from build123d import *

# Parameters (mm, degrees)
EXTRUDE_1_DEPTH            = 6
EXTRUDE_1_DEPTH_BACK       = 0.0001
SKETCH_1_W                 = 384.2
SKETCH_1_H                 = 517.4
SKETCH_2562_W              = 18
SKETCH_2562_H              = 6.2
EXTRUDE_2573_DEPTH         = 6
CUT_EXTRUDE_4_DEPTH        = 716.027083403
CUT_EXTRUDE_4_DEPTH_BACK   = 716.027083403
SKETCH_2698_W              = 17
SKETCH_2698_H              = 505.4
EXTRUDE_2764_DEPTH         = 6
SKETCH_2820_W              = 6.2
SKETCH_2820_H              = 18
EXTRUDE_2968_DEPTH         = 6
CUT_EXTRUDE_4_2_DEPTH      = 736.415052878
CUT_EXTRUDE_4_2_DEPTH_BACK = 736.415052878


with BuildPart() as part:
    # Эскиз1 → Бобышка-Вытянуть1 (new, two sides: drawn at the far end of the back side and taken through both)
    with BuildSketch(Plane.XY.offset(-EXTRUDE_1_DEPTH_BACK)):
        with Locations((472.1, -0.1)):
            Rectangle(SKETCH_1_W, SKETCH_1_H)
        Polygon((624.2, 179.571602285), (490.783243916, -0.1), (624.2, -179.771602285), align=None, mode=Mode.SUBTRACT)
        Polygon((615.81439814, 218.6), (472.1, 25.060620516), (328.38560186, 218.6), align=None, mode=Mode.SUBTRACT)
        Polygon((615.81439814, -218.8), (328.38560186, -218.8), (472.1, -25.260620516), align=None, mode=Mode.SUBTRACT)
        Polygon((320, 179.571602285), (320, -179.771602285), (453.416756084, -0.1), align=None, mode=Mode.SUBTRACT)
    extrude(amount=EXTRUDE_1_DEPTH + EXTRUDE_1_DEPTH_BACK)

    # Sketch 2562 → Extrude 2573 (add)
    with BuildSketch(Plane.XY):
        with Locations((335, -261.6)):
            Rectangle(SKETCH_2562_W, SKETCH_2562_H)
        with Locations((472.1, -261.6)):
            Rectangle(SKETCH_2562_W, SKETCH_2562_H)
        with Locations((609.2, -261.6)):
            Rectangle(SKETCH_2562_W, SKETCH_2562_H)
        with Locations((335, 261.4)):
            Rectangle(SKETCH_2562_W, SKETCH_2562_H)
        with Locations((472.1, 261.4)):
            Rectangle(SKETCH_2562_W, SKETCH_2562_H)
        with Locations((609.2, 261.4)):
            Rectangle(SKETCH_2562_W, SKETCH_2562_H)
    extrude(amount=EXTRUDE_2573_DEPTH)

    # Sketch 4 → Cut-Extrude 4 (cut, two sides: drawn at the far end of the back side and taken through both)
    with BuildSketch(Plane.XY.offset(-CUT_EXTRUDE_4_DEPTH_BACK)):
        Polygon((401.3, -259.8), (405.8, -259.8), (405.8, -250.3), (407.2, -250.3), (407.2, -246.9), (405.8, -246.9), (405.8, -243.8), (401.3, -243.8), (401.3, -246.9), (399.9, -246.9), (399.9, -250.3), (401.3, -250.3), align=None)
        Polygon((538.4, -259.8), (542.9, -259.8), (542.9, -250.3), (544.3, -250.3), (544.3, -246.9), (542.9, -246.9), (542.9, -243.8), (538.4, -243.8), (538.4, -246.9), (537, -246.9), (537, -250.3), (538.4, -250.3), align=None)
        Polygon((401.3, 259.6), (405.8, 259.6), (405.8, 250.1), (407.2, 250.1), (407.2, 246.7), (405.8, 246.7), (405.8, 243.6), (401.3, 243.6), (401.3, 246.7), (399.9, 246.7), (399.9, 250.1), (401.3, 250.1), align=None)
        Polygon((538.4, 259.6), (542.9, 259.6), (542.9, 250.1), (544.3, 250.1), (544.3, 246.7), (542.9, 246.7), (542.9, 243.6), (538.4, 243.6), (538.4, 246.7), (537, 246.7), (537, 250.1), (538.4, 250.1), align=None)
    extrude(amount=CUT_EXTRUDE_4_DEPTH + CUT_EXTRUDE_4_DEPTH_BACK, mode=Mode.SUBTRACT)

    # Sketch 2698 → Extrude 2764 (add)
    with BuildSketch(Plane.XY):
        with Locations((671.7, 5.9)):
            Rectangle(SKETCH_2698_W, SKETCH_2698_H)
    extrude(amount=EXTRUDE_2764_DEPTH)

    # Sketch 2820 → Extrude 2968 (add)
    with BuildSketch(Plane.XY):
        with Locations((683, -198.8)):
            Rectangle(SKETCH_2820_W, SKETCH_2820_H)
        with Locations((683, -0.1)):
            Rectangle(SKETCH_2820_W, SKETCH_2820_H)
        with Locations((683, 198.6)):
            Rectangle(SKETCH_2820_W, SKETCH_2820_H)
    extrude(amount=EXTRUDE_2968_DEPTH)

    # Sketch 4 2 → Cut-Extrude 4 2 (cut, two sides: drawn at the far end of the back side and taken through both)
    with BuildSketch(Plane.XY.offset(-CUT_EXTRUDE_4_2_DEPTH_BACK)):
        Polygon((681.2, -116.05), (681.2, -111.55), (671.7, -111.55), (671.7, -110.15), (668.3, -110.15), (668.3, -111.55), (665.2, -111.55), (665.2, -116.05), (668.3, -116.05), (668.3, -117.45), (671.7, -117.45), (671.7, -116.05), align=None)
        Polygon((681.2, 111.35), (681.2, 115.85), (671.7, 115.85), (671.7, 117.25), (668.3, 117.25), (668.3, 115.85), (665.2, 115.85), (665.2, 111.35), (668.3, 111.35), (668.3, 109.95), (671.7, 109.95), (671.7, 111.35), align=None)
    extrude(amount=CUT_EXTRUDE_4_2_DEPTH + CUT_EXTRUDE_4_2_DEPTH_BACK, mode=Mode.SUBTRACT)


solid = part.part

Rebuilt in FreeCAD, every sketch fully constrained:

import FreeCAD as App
import Part
import Sketcher

V = App.Vector


def add_polygon(sketch, points):
    """Adds a closed chain of lines whose ends are joined by coincident constraints."""
    first, n = sketch.GeometryCount, len(points)
    for a, b in zip(points, points[1:] + points[:1]):
        sketch.addGeometry(Part.LineSegment(App.Vector(*a, 0), App.Vector(*b, 0)), False)
    for i in range(n):
        sketch.addConstraint(Sketcher.Constraint("Coincident", first + i, 2, first + (i + 1) % n, 1))

doc = App.newDocument("Part")
body = doc.addObject("PartDesign::Body", "Body")

# Sketch on XY plane
sketch1 = doc.addObject("Sketcher::SketchObject", "Sketch")
body.addObject(sketch1)
sketch1.AttachmentSupport = (doc.XY_Plane, [""])
sketch1.MapMode = "FlatFace"
add_polygon(sketch1, [(280, 258.6), (280, -258.8), (664.2, -258.8), (664.2, 258.6)])  # lines 0-3
add_polygon(sketch1, [(472.1, -25.260621), (615.814398, -218.8), (328.385602, -218.8)])  # lines 4-6
add_polygon(sketch1, [(320, -179.771602), (320, 179.571602), (453.416756, -0.1)])  # lines 7-9
add_polygon(sketch1, [(328.385602, 218.6), (615.814398, 218.6), (472.1, 25.060621)])  # lines 10-12
add_polygon(sketch1, [(490.783244, -0.1), (624.2, 179.571602), (624.2, -179.771602)])  # lines 13-15
sketch1.addConstraint([
    Sketcher.Constraint("Vertical", 0),
    Sketcher.Constraint("Horizontal", 1),
    Sketcher.Constraint("Vertical", 2),
    Sketcher.Constraint("Horizontal", 3),
    Sketcher.Constraint("Horizontal", 5),
    Sketcher.Constraint("Vertical", 7),
    Sketcher.Constraint("Horizontal", 10),
    Sketcher.Constraint("Vertical", 14),
    Sketcher.Constraint("Parallel", 4, 8),
    Sketcher.Constraint("Parallel", 6, 9),
    Sketcher.Constraint("Parallel", 9, 11),
    Sketcher.Constraint("Parallel", 8, 12),
    Sketcher.Constraint("Parallel", 11, 13),
    Sketcher.Constraint("Parallel", 12, 15),
    Sketcher.Constraint("Horizontal", 7, 2, 13, 2),
    Sketcher.Constraint("Horizontal", 9, 2, 14, 2),
    Sketcher.Constraint("Horizontal", 8, 2, 15, 2),
    Sketcher.Constraint("Vertical", 4, 2, 10, 2),
    Sketcher.Constraint("Vertical", 6, 2, 11, 2),
    Sketcher.Constraint("DistanceX", 1, 1, 1, 2, 384.2),
    Sketcher.Constraint("DistanceY", 0, 2, 0, 1, 517.4),
    Sketcher.Constraint("DistanceX", -1, 1, 0, 2, 280.0),
    Sketcher.Constraint("DistanceX", -1, 1, 7, 2, 320.0),
    Sketcher.Constraint("DistanceY", 1, 2, 4, 2, 40.0),
    Sketcher.Constraint("DistanceY", 10, 2, 2, 2, 40.0),
    Sketcher.Constraint("DistanceX", 13, 2, 2, 2, 40.0),
    Sketcher.Constraint("DistanceY", 0, 2, -1, 1, 258.8),
    Sketcher.Constraint("DistanceX", -1, 1, 6, 2, 472.1),
    Sketcher.Constraint("DistanceY", 8, 2, -1, 1, 0.1),
    Sketcher.Constraint("DistanceX", -1, 1, 4, 2, 615.814398),
    Sketcher.Constraint("Distance", 8, 223.789891),
    Sketcher.Constraint("DistanceY", 7, 1, 7, 2, 359.343205),
])
pad1 = doc.addObject("PartDesign::Pad", "Pad")
body.addObject(pad1)
pad1.Profile = sketch1
pad1.Type = "TwoLengths"
pad1.Length = 6
pad1.Length2 = 0.0001

# Sketch on XY plane
sketch2 = doc.addObject("Sketcher::SketchObject", "Sketch001")
body.addObject(sketch2)
sketch2.AttachmentSupport = (doc.XY_Plane, [""])
sketch2.MapMode = "FlatFace"
add_polygon(sketch2, [(326, -258.5), (326, -264.7), (344, -264.7), (344, -258.5)])  # lines 0-3
add_polygon(sketch2, [(463.1, -258.5), (463.1, -264.7), (481.1, -264.7), (481.1, -258.5)])  # lines 4-7
add_polygon(sketch2, [(600.2, -258.5), (600.2, -264.7), (618.2, -264.7), (618.2, -258.5)])  # lines 8-11
add_polygon(sketch2, [(326, 264.5), (326, 258.3), (344, 258.3), (344, 264.5)])  # lines 12-15
add_polygon(sketch2, [(463.1, 264.5), (463.1, 258.3), (481.1, 258.3), (481.1, 264.5)])  # lines 16-19
add_polygon(sketch2, [(600.2, 264.5), (600.2, 258.3), (618.2, 258.3), (618.2, 264.5)])  # lines 20-23
sketch2.addConstraint([
    Sketcher.Constraint("Vertical", 0),
    Sketcher.Constraint("Horizontal", 1),
    Sketcher.Constraint("Vertical", 2),
    Sketcher.Constraint("Horizontal", 3),
    Sketcher.Constraint("Vertical", 4),
    Sketcher.Constraint("Horizontal", 5),
    Sketcher.Constraint("Vertical", 6),
    Sketcher.Constraint("Horizontal", 7),
    Sketcher.Constraint("Vertical", 8),
    Sketcher.Constraint("Horizontal", 9),
    Sketcher.Constraint("Vertical", 10),
    Sketcher.Constraint("Horizontal", 11),
    Sketcher.Constraint("Vertical", 12),
    Sketcher.Constraint("Horizontal", 13),
    Sketcher.Constraint("Vertical", 14),
    Sketcher.Constraint("Horizontal", 15),
    Sketcher.Constraint("Vertical", 16),
    Sketcher.Constraint("Horizontal", 17),
    Sketcher.Constraint("Vertical", 18),
    Sketcher.Constraint("Horizontal", 19),
    Sketcher.Constraint("Vertical", 20),
    Sketcher.Constraint("Horizontal", 21),
    Sketcher.Constraint("Vertical", 22),
    Sketcher.Constraint("Horizontal", 23),
    Sketcher.Constraint("Horizontal", 1, 2, 4, 2),
    Sketcher.Constraint("Horizontal", 3, 2, 6, 2),
    Sketcher.Constraint("Horizontal", 5, 2, 8, 2),
    Sketcher.Constraint("Horizontal", 7, 2, 10, 2),
    Sketcher.Constraint("Horizontal", 13, 2, 16, 2),
    Sketcher.Constraint("Horizontal", 15, 2, 18, 2),
    Sketcher.Constraint("Horizontal", 17, 2, 20, 2),
    Sketcher.Constraint("Horizontal", 19, 2, 22, 2),
    Sketcher.Constraint("Vertical", 3, 2, 12, 2),
    Sketcher.Constraint("Vertical", 2, 2, 13, 2),
    Sketcher.Constraint("Vertical", 7, 2, 16, 2),
    Sketcher.Constraint("Vertical", 6, 2, 17, 2),
    Sketcher.Constraint("Vertical", 11, 2, 20, 2),
    Sketcher.Constraint("Vertical", 10, 2, 21, 2),
    Sketcher.Constraint("Equal", 3, 5),
    Sketcher.Constraint("Equal", 7, 9),
    Sketcher.Constraint("Equal", 10, 12),
    Sketcher.Constraint("DistanceX", 1, 1, 1, 2, 18.0),
    Sketcher.Constraint("DistanceY", 0, 2, 0, 1, 6.2),
    Sketcher.Constraint("DistanceX", -1, 1, 0, 2, 326.0),
    Sketcher.Constraint("DistanceY", 0, 2, 12, 2, 523.0),
    Sketcher.Constraint("DistanceY", 0, 2, -1, 1, 264.7),
    Sketcher.Constraint("DistanceX", -1, 1, 4, 2, 463.1),
    Sketcher.Constraint("DistanceX", -1, 1, 8, 2, 600.2),
])
pad2 = doc.addObject("PartDesign::Pad", "Pad001")
body.addObject(pad2)
pad2.Profile = sketch2
pad2.Length = 6

# Sketch on XY plane
sketch3 = doc.addObject("Sketcher::SketchObject", "Sketch002")
body.addObject(sketch3)
sketch3.AttachmentSupport = (doc.XY_Plane, [""])
sketch3.MapMode = "FlatFace"
add_polygon(sketch3, [(401.3, -259.8), (405.8, -259.8), (405.8, -250.3), (407.2, -250.3), (407.2, -246.9), (405.8, -246.9), (405.8, -243.8), (401.3, -243.8), (401.3, -246.9), (399.9, -246.9), (399.9, -250.3), (401.3, -250.3)])  # lines 0-11
add_polygon(sketch3, [(538.4, -259.8), (542.9, -259.8), (542.9, -250.3), (544.3, -250.3), (544.3, -246.9), (542.9, -246.9), (542.9, -243.8), (538.4, -243.8), (538.4, -246.9), (537, -246.9), (537, -250.3), (538.4, -250.3)])  # lines 12-23
add_polygon(sketch3, [(405.8, 259.6), (401.3, 259.6), (401.3, 250.1), (399.9, 250.1), (399.9, 246.7), (401.3, 246.7), (401.3, 243.6), (405.8, 243.6), (405.8, 246.7), (407.2, 246.7), (407.2, 250.1), (405.8, 250.1)])  # lines 24-35
add_polygon(sketch3, [(542.9, 259.6), (538.4, 259.6), (538.4, 250.1), (537, 250.1), (537, 246.7), (538.4, 246.7), (538.4, 243.6), (542.9, 243.6), (542.9, 246.7), (544.3, 246.7), (544.3, 250.1), (542.9, 250.1)])  # lines 36-47
sketch3.addConstraint([
    Sketcher.Constraint("Horizontal", 0),
    Sketcher.Constraint("Vertical", 1),
    Sketcher.Constraint("Horizontal", 2),
    Sketcher.Constraint("Vertical", 3),
    Sketcher.Constraint("Horizontal", 4),
    Sketcher.Constraint("Vertical", 5),
    Sketcher.Constraint("Horizontal", 6),
    Sketcher.Constraint("Vertical", 7),
    Sketcher.Constraint("Horizontal", 8),
    Sketcher.Constraint("Vertical", 9),
    Sketcher.Constraint("Horizontal", 10),
    Sketcher.Constraint("Vertical", 11),
    Sketcher.Constraint("Horizontal", 12),
    Sketcher.Constraint("Vertical", 13),
    Sketcher.Constraint("Horizontal", 14),
    Sketcher.Constraint("Vertical", 15),
    Sketcher.Constraint("Horizontal", 16),
    Sketcher.Constraint("Vertical", 17),
    Sketcher.Constraint("Horizontal", 18),
    Sketcher.Constraint("Vertical", 19),
    Sketcher.Constraint("Horizontal", 20),
    Sketcher.Constraint("Vertical", 21),
    Sketcher.Constraint("Horizontal", 22),
    Sketcher.Constraint("Vertical", 23),
    Sketcher.Constraint("Horizontal", 24),
    Sketcher.Constraint("Vertical", 25),
    Sketcher.Constraint("Horizontal", 26),
    Sketcher.Constraint("Vertical", 27),
    Sketcher.Constraint("Horizontal", 28),
    Sketcher.Constraint("Vertical", 29),
    Sketcher.Constraint("Horizontal", 30),
    Sketcher.Constraint("Vertical", 31),
    Sketcher.Constraint("Horizontal", 32),
    Sketcher.Constraint("Vertical", 33),
    Sketcher.Constraint("Horizontal", 34),
    Sketcher.Constraint("Vertical", 35),
    Sketcher.Constraint("Horizontal", 36),
    Sketcher.Constraint("Vertical", 37),
    Sketcher.Constraint("Horizontal", 38),
    Sketcher.Constraint("Vertical", 39),
    Sketcher.Constraint("Horizontal", 40),
    Sketcher.Constraint("Vertical", 41),
    Sketcher.Constraint("Horizontal", 42),
    Sketcher.Constraint("Vertical", 43),
    Sketcher.Constraint("Horizontal", 44),
    Sketcher.Constraint("Vertical", 45),
    Sketcher.Constraint("Horizontal", 46),
    Sketcher.Constraint("Vertical", 47),
    Sketcher.Constraint("Horizontal", 4, 2, 7, 2),
    Sketcher.Constraint("Horizontal", 2, 2, 9, 2),
    Sketcher.Constraint("Horizontal", 11, 2, 12, 2),
    Sketcher.Constraint("Horizontal", 10, 2, 13, 2),
    Sketcher.Constraint("Horizontal", 8, 2, 15, 2),
    Sketcher.Constraint("Horizontal", 6, 2, 17, 2),
    Sketcher.Constraint("Horizontal", 16, 2, 19, 2),
    Sketcher.Constraint("Horizontal", 14, 2, 21, 2),
    Sketcher.Constraint("Horizontal", 28, 2, 31, 2),
    Sketcher.Constraint("Horizontal", 26, 2, 33, 2),
    Sketcher.Constraint("Horizontal", 35, 2, 36, 2),
    Sketcher.Constraint("Horizontal", 34, 2, 37, 2),
    Sketcher.Constraint("Horizontal", 32, 2, 39, 2),
    Sketcher.Constraint("Horizontal", 30, 2, 41, 2),
    Sketcher.Constraint("Horizontal", 40, 2, 43, 2),
    Sketcher.Constraint("Horizontal", 38, 2, 45, 2),
    Sketcher.Constraint("Vertical", 1, 2, 4, 2),
    Sketcher.Constraint("Vertical", 7, 2, 10, 2),
    Sketcher.Constraint("Vertical", 13, 2, 16, 2),
    Sketcher.Constraint("Vertical", 19, 2, 22, 2),
    Sketcher.Constraint("Vertical", 11, 2, 24, 2),
    Sketcher.Constraint("Vertical", 9, 2, 26, 2),
    Sketcher.Constraint("Vertical", 25, 2, 28, 2),
    Sketcher.Constraint("Vertical", 5, 2, 30, 2),
    Sketcher.Constraint("Vertical", 3, 2, 32, 2),
    Sketcher.Constraint("Vertical", 31, 2, 34, 2),
    Sketcher.Constraint("Vertical", 23, 2, 36, 2),
    Sketcher.Constraint("Vertical", 21, 2, 38, 2),
    Sketcher.Constraint("Vertical", 37, 2, 40, 2),
    Sketcher.Constraint("Vertical", 17, 2, 42, 2),
    Sketcher.Constraint("Vertical", 15, 2, 44, 2),
    Sketcher.Constraint("Vertical", 43, 2, 46, 2),
    Sketcher.Constraint("Equal", 4, 8),
    Sketcher.Constraint("Equal", 6, 12),
    Sketcher.Constraint("Equal", 10, 14),
    Sketcher.Constraint("Equal", 16, 20),
    Sketcher.Constraint("Equal", 23, 25),
    Sketcher.Constraint("Equal", 21, 27),
    Sketcher.Constraint("Equal", 19, 29),
    Sketcher.Constraint("DistanceX", 0, 1, 0, 2, 4.5),
    Sketcher.Constraint("DistanceX", 2, 1, 2, 2, 1.4),
    Sketcher.Constraint("DistanceY", 1, 1, 1, 2, 9.5),
    Sketcher.Constraint("DistanceY", 3, 1, 3, 2, 3.4),
    Sketcher.Constraint("DistanceY", 5, 1, 5, 2, 3.1),
    Sketcher.Constraint("DistanceX", -1, 1, 20, 2, 537.0),
    Sketcher.Constraint("DistanceY", 7, 2, 25, 2, 497.0),
    Sketcher.Constraint("DistanceX", -1, 1, 0, 2, 405.8),
    Sketcher.Constraint("DistanceY", 0, 2, -1, 1, 259.8),
])
pocket1 = doc.addObject("PartDesign::Pocket", "Pocket")
body.addObject(pocket1)
pocket1.Profile = sketch3
pocket1.Type = "ThroughAll"
pocket1.Midplane = True

# Sketch on XY plane
sketch4 = doc.addObject("Sketcher::SketchObject", "Sketch003")
body.addObject(sketch4)
sketch4.AttachmentSupport = (doc.XY_Plane, [""])
sketch4.MapMode = "FlatFace"
add_polygon(sketch4, [(663.2, 258.6), (663.2, -246.8), (680.2, -246.8), (680.2, 258.6)])  # lines 0-3
sketch4.addConstraint([
    Sketcher.Constraint("Vertical", 0),
    Sketcher.Constraint("Horizontal", 1),
    Sketcher.Constraint("Vertical", 2),
    Sketcher.Constraint("Horizontal", 3),
    Sketcher.Constraint("DistanceX", 1, 1, 1, 2, 17.0),
    Sketcher.Constraint("DistanceY", 0, 2, 0, 1, 505.4),
    Sketcher.Constraint("DistanceX", -1, 1, 0, 2, 663.2),
    Sketcher.Constraint("DistanceY", 0, 2, -1, 1, 246.8),
])
pad3 = doc.addObject("PartDesign::Pad", "Pad002")
body.addObject(pad3)
pad3.Profile = sketch4
pad3.Length = 6

# Sketch on XY plane
sketch5 = doc.addObject("Sketcher::SketchObject", "Sketch004")
body.addObject(sketch5)
sketch5.AttachmentSupport = (doc.XY_Plane, [""])
sketch5.MapMode = "FlatFace"
add_polygon(sketch5, [(679.9, -189.8), (679.9, -207.8), (686.1, -207.8), (686.1, -189.8)])  # lines 0-3
add_polygon(sketch5, [(679.9, 8.9), (679.9, -9.1), (686.1, -9.1), (686.1, 8.9)])  # lines 4-7
add_polygon(sketch5, [(679.9, 207.6), (679.9, 189.6), (686.1, 189.6), (686.1, 207.6)])  # lines 8-11
sketch5.addConstraint([
    Sketcher.Constraint("Vertical", 0),
    Sketcher.Constraint("Horizontal", 1),
    Sketcher.Constraint("Vertical", 2),
    Sketcher.Constraint("Horizontal", 3),
    Sketcher.Constraint("Vertical", 4),
    Sketcher.Constraint("Horizontal", 5),
    Sketcher.Constraint("Vertical", 6),
    Sketcher.Constraint("Horizontal", 7),
    Sketcher.Constraint("Vertical", 8),
    Sketcher.Constraint("Horizontal", 9),
    Sketcher.Constraint("Vertical", 10),
    Sketcher.Constraint("Horizontal", 11),
    Sketcher.Constraint("Vertical", 3, 2, 4, 2),
    Sketcher.Constraint("Vertical", 2, 2, 5, 2),
    Sketcher.Constraint("Vertical", 7, 2, 8, 2),
    Sketcher.Constraint("Vertical", 6, 2, 9, 2),
    Sketcher.Constraint("Equal", 2, 4),
    Sketcher.Constraint("Equal", 6, 8),
    Sketcher.Constraint("DistanceY", 0, 2, 0, 1, 18.0),
    Sketcher.Constraint("DistanceX", 1, 1, 1, 2, 6.2),
    Sketcher.Constraint("DistanceX", -1, 1, 0, 2, 679.9),
    Sketcher.Constraint("DistanceY", 0, 2, -1, 1, 207.8),
    Sketcher.Constraint("DistanceY", 4, 2, -1, 1, 9.1),
    Sketcher.Constraint("DistanceY", -1, 1, 8, 2, 189.6),
])
pad4 = doc.addObject("PartDesign::Pad", "Pad003")
body.addObject(pad4)
pad4.Profile = sketch5
pad4.Length = 6

# Sketch on XY plane
sketch6 = doc.addObject("Sketcher::SketchObject", "Sketch005")
body.addObject(sketch6)
sketch6.AttachmentSupport = (doc.XY_Plane, [""])
sketch6.MapMode = "FlatFace"
add_polygon(sketch6, [(681.2, -116.05), (681.2, -111.55), (671.7, -111.55), (671.7, -110.15), (668.3, -110.15), (668.3, -111.55), (665.2, -111.55), (665.2, -116.05), (668.3, -116.05), (668.3, -117.45), (671.7, -117.45), (671.7, -116.05)])  # lines 0-11
add_polygon(sketch6, [(681.2, 111.35), (681.2, 115.85), (671.7, 115.85), (671.7, 117.25), (668.3, 117.25), (668.3, 115.85), (665.2, 115.85), (665.2, 111.35), (668.3, 111.35), (668.3, 109.95), (671.7, 109.95), (671.7, 111.35)])  # lines 12-23
sketch6.addConstraint([
    Sketcher.Constraint("Vertical", 0),
    Sketcher.Constraint("Horizontal", 1),
    Sketcher.Constraint("Vertical", 2),
    Sketcher.Constraint("Horizontal", 3),
    Sketcher.Constraint("Vertical", 4),
    Sketcher.Constraint("Horizontal", 5),
    Sketcher.Constraint("Vertical", 6),
    Sketcher.Constraint("Horizontal", 7),
    Sketcher.Constraint("Vertical", 8),
    Sketcher.Constraint("Horizontal", 9),
    Sketcher.Constraint("Vertical", 10),
    Sketcher.Constraint("Horizontal", 11),
    Sketcher.Constraint("Vertical", 12),
    Sketcher.Constraint("Horizontal", 13),
    Sketcher.Constraint("Vertical", 14),
    Sketcher.Constraint("Horizontal", 15),
    Sketcher.Constraint("Vertical", 16),
    Sketcher.Constraint("Horizontal", 17),
    Sketcher.Constraint("Vertical", 18),
    Sketcher.Constraint("Horizontal", 19),
    Sketcher.Constraint("Vertical", 20),
    Sketcher.Constraint("Horizontal", 21),
    Sketcher.Constraint("Vertical", 22),
    Sketcher.Constraint("Horizontal", 23),
    Sketcher.Constraint("Horizontal", 1, 2, 4, 2),
    Sketcher.Constraint("Horizontal", 7, 2, 10, 2),
    Sketcher.Constraint("Horizontal", 13, 2, 16, 2),
    Sketcher.Constraint("Horizontal", 19, 2, 22, 2),
    Sketcher.Constraint("Vertical", 4, 2, 7, 2),
    Sketcher.Constraint("Vertical", 2, 2, 9, 2),
    Sketcher.Constraint("Vertical", 11, 2, 12, 2),
    Sketcher.Constraint("Vertical", 10, 2, 13, 2),
    Sketcher.Constraint("Vertical", 8, 2, 15, 2),
    Sketcher.Constraint("Vertical", 6, 2, 17, 2),
    Sketcher.Constraint("Vertical", 16, 2, 19, 2),
    Sketcher.Constraint("Vertical", 14, 2, 21, 2),
    Sketcher.Constraint("Equal", 4, 8),
    Sketcher.Constraint("Equal", 6, 12),
    Sketcher.Constraint("Equal", 10, 14),
    Sketcher.Constraint("Equal", 16, 20),
    Sketcher.Constraint("DistanceX", 1, 2, 1, 1, 9.5),
    Sketcher.Constraint("DistanceX", 3, 2, 3, 1, 3.4),
    Sketcher.Constraint("DistanceX", 5, 2, 5, 1, 3.1),
    Sketcher.Constraint("DistanceY", 0, 1, 0, 2, 4.5),
    Sketcher.Constraint("DistanceY", 2, 1, 2, 2, 1.4),
    Sketcher.Constraint("DistanceY", 2, 2, 12, 2, 226.0),
    Sketcher.Constraint("DistanceX", -1, 1, 0, 2, 681.2),
    Sketcher.Constraint("DistanceY", 0, 2, -1, 1, 111.55),
])
pocket2 = doc.addObject("PartDesign::Pocket", "Pocket001")
body.addObject(pocket2)
pocket2.Profile = sketch6
pocket2.Type = "ThroughAll"
pocket2.Midplane = True

doc.recompute()
